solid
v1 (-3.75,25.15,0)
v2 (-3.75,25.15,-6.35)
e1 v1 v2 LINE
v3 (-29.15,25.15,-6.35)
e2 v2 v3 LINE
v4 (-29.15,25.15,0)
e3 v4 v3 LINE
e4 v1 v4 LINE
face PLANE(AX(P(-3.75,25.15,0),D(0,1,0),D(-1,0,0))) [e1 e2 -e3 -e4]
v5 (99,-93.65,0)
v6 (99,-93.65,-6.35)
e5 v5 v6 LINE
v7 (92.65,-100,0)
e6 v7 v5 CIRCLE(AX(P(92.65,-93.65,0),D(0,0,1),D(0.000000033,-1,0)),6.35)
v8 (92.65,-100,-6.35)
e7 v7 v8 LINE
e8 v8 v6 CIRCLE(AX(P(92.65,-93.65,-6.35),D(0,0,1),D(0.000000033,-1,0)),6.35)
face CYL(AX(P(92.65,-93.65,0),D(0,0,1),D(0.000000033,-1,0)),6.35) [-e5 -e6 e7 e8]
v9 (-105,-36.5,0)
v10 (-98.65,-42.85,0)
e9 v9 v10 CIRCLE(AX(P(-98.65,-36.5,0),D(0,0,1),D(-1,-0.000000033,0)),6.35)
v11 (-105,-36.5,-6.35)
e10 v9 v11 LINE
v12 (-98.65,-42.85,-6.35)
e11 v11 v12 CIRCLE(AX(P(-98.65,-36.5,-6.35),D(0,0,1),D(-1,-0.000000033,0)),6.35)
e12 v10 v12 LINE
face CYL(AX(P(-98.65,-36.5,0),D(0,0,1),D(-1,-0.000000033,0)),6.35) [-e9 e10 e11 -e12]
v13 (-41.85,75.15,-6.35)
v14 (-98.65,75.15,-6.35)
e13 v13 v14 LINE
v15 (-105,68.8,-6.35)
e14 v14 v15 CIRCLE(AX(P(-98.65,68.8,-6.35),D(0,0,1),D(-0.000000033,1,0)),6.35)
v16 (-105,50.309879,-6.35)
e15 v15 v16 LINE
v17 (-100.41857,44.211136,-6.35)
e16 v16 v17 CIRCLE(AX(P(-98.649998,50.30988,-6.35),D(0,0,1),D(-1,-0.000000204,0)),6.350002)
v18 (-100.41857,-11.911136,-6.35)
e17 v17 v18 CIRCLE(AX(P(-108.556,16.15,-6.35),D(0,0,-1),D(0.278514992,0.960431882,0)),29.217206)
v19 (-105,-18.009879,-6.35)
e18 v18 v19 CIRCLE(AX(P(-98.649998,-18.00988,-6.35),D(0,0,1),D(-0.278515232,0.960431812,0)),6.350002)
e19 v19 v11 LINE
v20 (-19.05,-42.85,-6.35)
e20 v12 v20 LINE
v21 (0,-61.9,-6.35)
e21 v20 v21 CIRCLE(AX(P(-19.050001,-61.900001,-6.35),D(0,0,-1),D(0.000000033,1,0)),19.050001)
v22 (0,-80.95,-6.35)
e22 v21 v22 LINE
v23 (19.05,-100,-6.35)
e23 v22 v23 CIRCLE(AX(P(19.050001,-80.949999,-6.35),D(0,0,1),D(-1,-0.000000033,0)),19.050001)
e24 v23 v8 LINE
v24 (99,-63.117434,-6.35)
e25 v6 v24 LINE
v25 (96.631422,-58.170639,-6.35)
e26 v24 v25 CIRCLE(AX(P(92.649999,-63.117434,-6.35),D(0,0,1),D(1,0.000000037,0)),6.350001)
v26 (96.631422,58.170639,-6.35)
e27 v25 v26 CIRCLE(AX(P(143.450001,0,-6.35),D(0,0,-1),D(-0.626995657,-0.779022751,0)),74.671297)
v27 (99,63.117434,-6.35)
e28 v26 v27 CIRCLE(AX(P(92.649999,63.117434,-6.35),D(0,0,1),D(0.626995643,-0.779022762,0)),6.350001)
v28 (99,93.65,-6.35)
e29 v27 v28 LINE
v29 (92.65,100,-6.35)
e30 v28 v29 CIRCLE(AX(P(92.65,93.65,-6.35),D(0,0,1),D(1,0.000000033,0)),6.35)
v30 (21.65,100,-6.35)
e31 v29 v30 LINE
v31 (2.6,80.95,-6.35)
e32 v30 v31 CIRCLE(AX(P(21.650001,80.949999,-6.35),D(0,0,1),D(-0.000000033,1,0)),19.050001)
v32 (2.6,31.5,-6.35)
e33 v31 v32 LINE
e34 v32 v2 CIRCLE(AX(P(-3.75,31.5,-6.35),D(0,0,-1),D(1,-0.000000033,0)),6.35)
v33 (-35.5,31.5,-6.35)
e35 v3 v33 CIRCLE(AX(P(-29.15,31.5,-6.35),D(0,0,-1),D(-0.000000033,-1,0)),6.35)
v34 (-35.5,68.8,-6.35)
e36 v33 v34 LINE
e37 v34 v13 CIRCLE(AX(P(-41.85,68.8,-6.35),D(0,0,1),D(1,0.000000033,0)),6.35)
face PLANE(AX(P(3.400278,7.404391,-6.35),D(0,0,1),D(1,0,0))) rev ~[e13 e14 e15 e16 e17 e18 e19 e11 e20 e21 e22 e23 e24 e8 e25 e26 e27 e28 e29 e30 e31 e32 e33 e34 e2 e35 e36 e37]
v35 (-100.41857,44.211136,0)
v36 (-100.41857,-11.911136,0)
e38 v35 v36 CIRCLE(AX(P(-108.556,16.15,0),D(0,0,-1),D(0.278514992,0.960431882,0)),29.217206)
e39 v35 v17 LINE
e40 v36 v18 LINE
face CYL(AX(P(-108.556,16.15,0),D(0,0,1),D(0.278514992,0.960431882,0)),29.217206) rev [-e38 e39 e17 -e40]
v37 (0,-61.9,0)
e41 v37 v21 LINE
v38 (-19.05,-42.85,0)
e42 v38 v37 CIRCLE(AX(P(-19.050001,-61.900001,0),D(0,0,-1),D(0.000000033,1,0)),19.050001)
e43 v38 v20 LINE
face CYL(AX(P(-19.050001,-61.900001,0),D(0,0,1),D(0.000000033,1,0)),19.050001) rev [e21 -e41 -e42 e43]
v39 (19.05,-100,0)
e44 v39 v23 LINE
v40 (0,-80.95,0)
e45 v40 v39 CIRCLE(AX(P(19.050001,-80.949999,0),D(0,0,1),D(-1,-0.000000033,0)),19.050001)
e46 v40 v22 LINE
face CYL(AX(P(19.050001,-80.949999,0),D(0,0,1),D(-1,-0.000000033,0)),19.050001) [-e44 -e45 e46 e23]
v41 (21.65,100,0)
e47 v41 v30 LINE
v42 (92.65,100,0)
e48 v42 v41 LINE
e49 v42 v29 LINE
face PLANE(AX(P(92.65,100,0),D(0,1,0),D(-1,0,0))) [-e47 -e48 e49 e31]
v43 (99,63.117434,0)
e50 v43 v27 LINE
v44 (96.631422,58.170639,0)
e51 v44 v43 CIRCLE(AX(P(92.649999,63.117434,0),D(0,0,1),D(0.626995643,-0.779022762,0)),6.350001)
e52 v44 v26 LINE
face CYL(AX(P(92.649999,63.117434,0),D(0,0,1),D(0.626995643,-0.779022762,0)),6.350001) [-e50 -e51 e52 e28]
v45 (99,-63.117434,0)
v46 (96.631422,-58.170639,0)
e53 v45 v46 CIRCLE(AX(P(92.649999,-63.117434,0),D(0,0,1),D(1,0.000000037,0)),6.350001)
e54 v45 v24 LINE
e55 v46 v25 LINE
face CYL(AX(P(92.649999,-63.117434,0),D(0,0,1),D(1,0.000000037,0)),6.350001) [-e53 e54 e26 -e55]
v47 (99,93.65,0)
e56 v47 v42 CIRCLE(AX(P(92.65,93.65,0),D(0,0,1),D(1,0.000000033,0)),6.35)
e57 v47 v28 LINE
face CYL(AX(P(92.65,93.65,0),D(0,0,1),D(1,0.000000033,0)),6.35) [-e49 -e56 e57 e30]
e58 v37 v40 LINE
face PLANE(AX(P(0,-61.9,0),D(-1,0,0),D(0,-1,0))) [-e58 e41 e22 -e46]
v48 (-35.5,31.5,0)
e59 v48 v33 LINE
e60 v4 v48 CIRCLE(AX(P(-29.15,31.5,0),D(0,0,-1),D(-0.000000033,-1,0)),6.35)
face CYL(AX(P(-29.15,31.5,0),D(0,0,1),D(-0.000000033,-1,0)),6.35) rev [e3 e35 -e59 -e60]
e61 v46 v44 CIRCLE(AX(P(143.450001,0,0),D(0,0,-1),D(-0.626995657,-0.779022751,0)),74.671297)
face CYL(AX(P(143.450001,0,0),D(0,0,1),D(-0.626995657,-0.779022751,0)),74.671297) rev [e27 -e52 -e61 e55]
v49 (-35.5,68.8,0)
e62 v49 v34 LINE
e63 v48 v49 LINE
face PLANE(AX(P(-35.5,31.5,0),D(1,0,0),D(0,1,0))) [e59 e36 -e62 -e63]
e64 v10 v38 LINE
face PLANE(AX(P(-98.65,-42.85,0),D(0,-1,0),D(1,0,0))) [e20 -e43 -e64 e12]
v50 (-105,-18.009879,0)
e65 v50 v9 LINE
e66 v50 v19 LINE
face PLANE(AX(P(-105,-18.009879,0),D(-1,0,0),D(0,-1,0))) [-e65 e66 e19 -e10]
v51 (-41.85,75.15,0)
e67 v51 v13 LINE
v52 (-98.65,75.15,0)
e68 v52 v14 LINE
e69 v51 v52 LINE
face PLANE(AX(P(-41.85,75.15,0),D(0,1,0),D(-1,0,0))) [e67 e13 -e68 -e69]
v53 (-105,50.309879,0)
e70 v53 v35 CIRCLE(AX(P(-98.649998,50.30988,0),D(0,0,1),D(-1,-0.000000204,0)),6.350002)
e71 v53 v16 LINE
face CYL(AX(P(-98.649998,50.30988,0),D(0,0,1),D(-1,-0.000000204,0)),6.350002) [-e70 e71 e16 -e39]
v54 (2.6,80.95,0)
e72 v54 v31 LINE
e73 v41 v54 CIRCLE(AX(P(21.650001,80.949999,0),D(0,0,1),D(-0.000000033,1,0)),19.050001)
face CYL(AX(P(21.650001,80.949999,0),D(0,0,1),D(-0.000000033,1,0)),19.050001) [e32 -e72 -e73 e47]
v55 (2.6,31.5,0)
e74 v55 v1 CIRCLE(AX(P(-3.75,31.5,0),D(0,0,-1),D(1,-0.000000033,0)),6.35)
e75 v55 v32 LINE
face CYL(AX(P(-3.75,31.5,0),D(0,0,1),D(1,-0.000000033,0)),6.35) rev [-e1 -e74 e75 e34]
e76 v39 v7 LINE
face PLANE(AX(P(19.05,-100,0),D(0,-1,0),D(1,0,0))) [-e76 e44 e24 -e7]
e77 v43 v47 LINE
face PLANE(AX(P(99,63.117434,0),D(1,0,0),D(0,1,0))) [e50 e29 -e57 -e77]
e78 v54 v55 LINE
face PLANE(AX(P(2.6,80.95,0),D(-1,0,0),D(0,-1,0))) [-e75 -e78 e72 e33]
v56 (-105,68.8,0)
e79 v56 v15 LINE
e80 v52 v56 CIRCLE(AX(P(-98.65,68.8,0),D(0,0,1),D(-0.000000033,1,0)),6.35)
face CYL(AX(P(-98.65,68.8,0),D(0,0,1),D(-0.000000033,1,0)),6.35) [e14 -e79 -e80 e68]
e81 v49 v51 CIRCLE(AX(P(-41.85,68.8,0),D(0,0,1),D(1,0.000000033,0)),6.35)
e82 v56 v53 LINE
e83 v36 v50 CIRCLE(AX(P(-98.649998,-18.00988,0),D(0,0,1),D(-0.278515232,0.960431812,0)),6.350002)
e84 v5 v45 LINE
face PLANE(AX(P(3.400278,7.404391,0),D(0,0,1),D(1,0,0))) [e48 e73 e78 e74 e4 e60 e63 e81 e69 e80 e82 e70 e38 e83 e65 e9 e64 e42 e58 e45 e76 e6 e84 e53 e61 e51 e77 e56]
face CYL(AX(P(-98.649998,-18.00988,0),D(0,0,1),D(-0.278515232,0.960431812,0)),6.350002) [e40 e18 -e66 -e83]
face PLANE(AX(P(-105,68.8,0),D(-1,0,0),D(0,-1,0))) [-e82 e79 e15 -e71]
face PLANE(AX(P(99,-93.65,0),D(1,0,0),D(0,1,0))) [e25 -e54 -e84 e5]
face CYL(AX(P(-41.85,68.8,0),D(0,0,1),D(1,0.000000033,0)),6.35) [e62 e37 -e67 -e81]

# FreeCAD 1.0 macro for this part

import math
import FreeCAD as App
import Part
import Sketcher
from FreeCAD import Vector
Q = App.Units.Quantity

doc = App.newDocument("Part")
body = doc.addObject("PartDesign::Body", "Body")

# Sketch on XY plane
sketch1 = body.newObject("Sketcher::SketchObject", "Sketch")
sketch1.AttachmentSupport = (doc.getObject("XY_Plane"), [""])
sketch1.MapMode = "FlatFace"
sketch1.addGeometry(Part.ArcOfCircle(Part.Circle(Vector(-99, -36, 0), Vector(0, 0, 1), 6), math.radians(-180), math.radians(-90)), False)
sketch1.addGeometry(Part.LineSegment(Vector(-99, -43, 0), Vector(-19, -43, 0)), False)
sketch1.addGeometry(Part.ArcOfCircle(Part.Circle(Vector(-19, -62, 0), Vector(0, 0, 1), 19), math.radians(0), math.radians(90)), False)
sketch1.addGeometry(Part.LineSegment(Vector(0, -62, 0), Vector(0, -81, 0)), False)
sketch1.addGeometry(Part.ArcOfCircle(Part.Circle(Vector(19, -81, 0), Vector(0, 0, 1), 19), math.radians(-180), math.radians(-90)), False)
sketch1.addGeometry(Part.LineSegment(Vector(19, -100, 0), Vector(93, -100, 0)), False)
sketch1.addGeometry(Part.ArcOfCircle(Part.Circle(Vector(93, -94, 0), Vector(0, 0, 1), 6), math.radians(-90), math.radians(0)), False)
sketch1.addGeometry(Part.LineSegment(Vector(99, -94, 0), Vector(99, -63, 0)), False)
sketch1.addGeometry(Part.ArcOfCircle(Part.Circle(Vector(93, -63, 0), Vector(0, 0, 1), 6), math.radians(0), math.radians(51)), False)
sketch1.addGeometry(Part.ArcOfCircle(Part.Circle(Vector(143, 0, 0), Vector(0, 0, 1), 75), math.radians(129), math.radians(231)), False)
sketch1.addGeometry(Part.ArcOfCircle(Part.Circle(Vector(93, 63, 0), Vector(0, 0, 1), 6), math.radians(-51), math.radians(0)), False)
sketch1.addGeometry(Part.LineSegment(Vector(99, 63, 0), Vector(99, 94, 0)), False)
sketch1.addGeometry(Part.ArcOfCircle(Part.Circle(Vector(93, 94, 0), Vector(0, 0, 1), 6), math.radians(0), math.radians(90)), False)
sketch1.addGeometry(Part.LineSegment(Vector(93, 100, 0), Vector(22, 100, 0)), False)
sketch1.addGeometry(Part.ArcOfCircle(Part.Circle(Vector(22, 81, 0), Vector(0, 0, 1), 19), math.radians(90), math.radians(180)), False)
sketch1.addGeometry(Part.LineSegment(Vector(3, 81, 0), Vector(3, 32, 0)), False)
sketch1.addGeometry(Part.ArcOfCircle(Part.Circle(Vector(-4, 32, 0), Vector(0, 0, 1), 6), math.radians(-90), math.radians(0)), False)
sketch1.addGeometry(Part.LineSegment(Vector(-4, 25, 0), Vector(-29, 25, 0)), False)
sketch1.addGeometry(Part.ArcOfCircle(Part.Circle(Vector(-29, 32, 0), Vector(0, 0, 1), 6), math.radians(-180), math.radians(-90)), False)
sketch1.addGeometry(Part.LineSegment(Vector(-36, 32, 0), Vector(-36, 69, 0)), False)
sketch1.addGeometry(Part.ArcOfCircle(Part.Circle(Vector(-42, 69, 0), Vector(0, 0, 1), 6), math.radians(0), math.radians(90)), False)
sketch1.addGeometry(Part.LineSegment(Vector(-42, 75, 0), Vector(-99, 75, 0)), False)
sketch1.addGeometry(Part.ArcOfCircle(Part.Circle(Vector(-99, 69, 0), Vector(0, 0, 1), 6), math.radians(90), math.radians(180)), False)
sketch1.addGeometry(Part.LineSegment(Vector(-105, 69, 0), Vector(-105, 50, 0)), False)
sketch1.addGeometry(Part.ArcOfCircle(Part.Circle(Vector(-99, 50, 0), Vector(0, 0, 1), 6), math.radians(-180), math.radians(-106)), False)
sketch1.addGeometry(Part.ArcOfCircle(Part.Circle(Vector(-109, 16, 0), Vector(0, 0, 1), 29), math.radians(-74), math.radians(74)), False)
sketch1.addGeometry(Part.ArcOfCircle(Part.Circle(Vector(-99, -18, 0), Vector(0, 0, 1), 6), math.radians(106), math.radians(180)), False)
sketch1.addGeometry(Part.LineSegment(Vector(-105, -18, 0), Vector(-105, -36, 0)), False)
sketch1.addConstraint(Sketcher.Constraint("Tangent", 0, 2, 1, 1))
sketch1.addConstraint(Sketcher.Constraint("Tangent", 1, 2, 2, 2))
sketch1.addConstraint(Sketcher.Constraint("Tangent", 2, 1, 3, 1))
sketch1.addConstraint(Sketcher.Constraint("Tangent", 3, 2, 4, 1))
sketch1.addConstraint(Sketcher.Constraint("Tangent", 4, 2, 5, 1))
sketch1.addConstraint(Sketcher.Constraint("Tangent", 5, 2, 6, 1))
sketch1.addConstraint(Sketcher.Constraint("Tangent", 6, 2, 7, 1))
sketch1.addConstraint(Sketcher.Constraint("Tangent", 7, 2, 8, 1))
sketch1.addConstraint(Sketcher.Constraint("Tangent", 8, 2, 9, 2))
sketch1.addConstraint(Sketcher.Constraint("Tangent", 9, 1, 10, 1))
sketch1.addConstraint(Sketcher.Constraint("Tangent", 10, 2, 11, 1))
sketch1.addConstraint(Sketcher.Constraint("Tangent", 11, 2, 12, 1))
sketch1.addConstraint(Sketcher.Constraint("Tangent", 12, 2, 13, 1))
sketch1.addConstraint(Sketcher.Constraint("Tangent", 13, 2, 14, 1))
sketch1.addConstraint(Sketcher.Constraint("Tangent", 14, 2, 15, 1))
sketch1.addConstraint(Sketcher.Constraint("Tangent", 15, 2, 16, 2))
sketch1.addConstraint(Sketcher.Constraint("Tangent", 16, 1, 17, 1))
sketch1.addConstraint(Sketcher.Constraint("Tangent", 17, 2, 18, 2))
sketch1.addConstraint(Sketcher.Constraint("Tangent", 18, 1, 19, 1))
sketch1.addConstraint(Sketcher.Constraint("Tangent", 19, 2, 20, 1))
sketch1.addConstraint(Sketcher.Constraint("Tangent", 20, 2, 21, 1))
sketch1.addConstraint(Sketcher.Constraint("Tangent", 21, 2, 22, 1))
sketch1.addConstraint(Sketcher.Constraint("Tangent", 22, 2, 23, 1))
sketch1.addConstraint(Sketcher.Constraint("Tangent", 23, 2, 24, 1))
sketch1.addConstraint(Sketcher.Constraint("Tangent", 24, 2, 25, 2))
sketch1.addConstraint(Sketcher.Constraint("Tangent", 25, 1, 26, 1))
sketch1.addConstraint(Sketcher.Constraint("Tangent", 26, 2, 27, 1))
sketch1.addConstraint(Sketcher.Constraint("Tangent", 27, 2, 0, 1))
sketch1.addConstraint(Sketcher.Constraint("Horizontal", 1))
sketch1.addConstraint(Sketcher.Constraint("Vertical", 3))
sketch1.addConstraint(Sketcher.Constraint("Horizontal", 5))
sketch1.addConstraint(Sketcher.Constraint("Vertical", 7))
sketch1.addConstraint(Sketcher.Constraint("Vertical", 11))
sketch1.addConstraint(Sketcher.Constraint("Horizontal", 13))
sketch1.addConstraint(Sketcher.Constraint("Vertical", 15))
sketch1.addConstraint(Sketcher.Constraint("Horizontal", 17))
sketch1.addConstraint(Sketcher.Constraint("Vertical", 19))
sketch1.addConstraint(Sketcher.Constraint("Horizontal", 21))
sketch1.addConstraint(Sketcher.Constraint("Vertical", 23))
sketch1.addConstraint(Sketcher.Constraint("Vertical", 27))
sketch1.addConstraint(Sketcher.Constraint("Equal", 2, 4))
sketch1.addConstraint(Sketcher.Constraint("Equal", 0, 6))
sketch1.addConstraint(Sketcher.Constraint("Equal", 6, 8))
sketch1.addConstraint(Sketcher.Constraint("Equal", 8, 10))
sketch1.addConstraint(Sketcher.Constraint("Equal", 10, 12))
sketch1.addConstraint(Sketcher.Constraint("Equal", 4, 14))
sketch1.addConstraint(Sketcher.Constraint("Equal", 12, 16))
sketch1.addConstraint(Sketcher.Constraint("Equal", 16, 18))
sketch1.addConstraint(Sketcher.Constraint("Equal", 18, 20))
sketch1.addConstraint(Sketcher.Constraint("Equal", 20, 22))
sketch1.addConstraint(Sketcher.Constraint("Equal", 10, 24))
sketch1.addConstraint(Sketcher.Constraint("Equal", 24, 26))
sketch1.addConstraint(Sketcher.Constraint("Symmetric", 8, 3, 10, 3, -1))
sketch1.addConstraint(Sketcher.Constraint("PointOnObject", 2, 1, -2))
sketch1.addConstraint(Sketcher.Constraint("Vertical", 0, 3, 22, 3))
sketch1.addConstraint(Sketcher.Constraint("Equal", 7, 11))
sketch1.addConstraint(Sketcher.Constraint("Equal", 23, 27))
sketch1.addConstraint(Sketcher.Constraint("DistanceX", 17, 2, 17, 1, Q("1 in")))
sketch1.addConstraint(Sketcher.Constraint("Radius", 0, Q("0.25 in")))
sketch1.addConstraint(Sketcher.Constraint("Radius", 2, Q("0.75 in")))
sketch1.addConstraint(Sketcher.Constraint("DistanceX", 8, 3, 9, 3, Q("2.0000001 in")))
sketch1.addConstraint(Sketcher.Constraint("DistanceY", 3, 2, 3, 1, Q("0.75 in")))
sketch1.addConstraint(Sketcher.Constraint("DistanceX", 25, 3, 24, 3, Q("0.3900001 in")))
sketch1.addConstraint(Sketcher.Constraint("DistanceX", 1, 1, 1, 2, 79.6))
sketch1.addConstraint(Sketcher.Constraint("DistanceX", 5, 1, 5, 2, 73.6))
sketch1.addConstraint(Sketcher.Constraint("DistanceX", 13, 2, 13, 1, 71.0))
sketch1.addConstraint(Sketcher.Constraint("DistanceY", 15, 2, 15, 1, 49.45))
sketch1.addConstraint(Sketcher.Constraint("DistanceY", 19, 1, 19, 2, 37.3))
sketch1.addConstraint(Sketcher.Constraint("Radius", 9, 74.671297))
sketch1.addConstraint(Sketcher.Constraint("Radius", 25, 29.217206))
sketch1.addConstraint(Sketcher.Constraint("DistanceY", 23, 2, 23, 1, 18.490121))
pad1 = body.newObject("PartDesign::Pad", "Pad")
pad1.Profile = sketch1
pad1.Length = Q("0.25 in")
pad1.Reversed = True

doc.recompute()
